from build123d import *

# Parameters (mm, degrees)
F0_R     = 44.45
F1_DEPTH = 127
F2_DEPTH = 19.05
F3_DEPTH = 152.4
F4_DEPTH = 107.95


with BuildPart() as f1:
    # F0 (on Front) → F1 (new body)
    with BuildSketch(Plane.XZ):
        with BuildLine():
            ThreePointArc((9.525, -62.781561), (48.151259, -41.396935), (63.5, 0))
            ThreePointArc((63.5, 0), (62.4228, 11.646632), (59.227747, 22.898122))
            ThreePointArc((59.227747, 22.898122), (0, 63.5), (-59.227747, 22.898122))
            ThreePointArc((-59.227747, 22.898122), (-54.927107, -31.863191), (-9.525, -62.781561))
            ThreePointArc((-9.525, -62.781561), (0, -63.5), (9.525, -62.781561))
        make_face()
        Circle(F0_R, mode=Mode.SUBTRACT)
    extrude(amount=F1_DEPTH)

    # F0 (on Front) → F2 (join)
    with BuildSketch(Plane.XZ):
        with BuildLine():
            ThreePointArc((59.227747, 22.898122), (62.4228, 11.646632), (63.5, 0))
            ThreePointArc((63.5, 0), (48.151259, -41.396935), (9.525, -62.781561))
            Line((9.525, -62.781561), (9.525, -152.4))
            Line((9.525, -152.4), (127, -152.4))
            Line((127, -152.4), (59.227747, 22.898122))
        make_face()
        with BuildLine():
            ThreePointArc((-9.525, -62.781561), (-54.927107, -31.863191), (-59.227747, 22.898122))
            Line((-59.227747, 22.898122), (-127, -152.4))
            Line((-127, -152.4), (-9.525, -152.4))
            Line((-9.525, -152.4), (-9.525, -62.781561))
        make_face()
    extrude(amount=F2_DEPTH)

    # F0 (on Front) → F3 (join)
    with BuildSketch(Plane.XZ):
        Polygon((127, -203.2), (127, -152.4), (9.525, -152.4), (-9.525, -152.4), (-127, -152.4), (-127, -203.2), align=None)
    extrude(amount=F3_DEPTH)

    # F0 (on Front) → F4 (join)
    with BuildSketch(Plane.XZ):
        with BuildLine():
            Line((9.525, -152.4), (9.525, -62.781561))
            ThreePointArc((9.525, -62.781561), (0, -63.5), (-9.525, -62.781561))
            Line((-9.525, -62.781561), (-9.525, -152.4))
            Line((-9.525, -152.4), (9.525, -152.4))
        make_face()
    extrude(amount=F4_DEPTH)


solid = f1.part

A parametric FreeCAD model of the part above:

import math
import FreeCAD as App
import Part
import Sketcher

V = App.Vector
Q = App.Units.Quantity

doc = App.newDocument("Part")
body = doc.addObject("PartDesign::Body", "Body")

sketch1 = body.newObject("Sketcher::SketchObject", "Sketch")
sketch1.AttachmentSupport = (doc.getObject("XZ_Plane"), [""])
sketch1.MapMode = "FlatFace"
sketch1.addGeometry([
    Part.ArcOfCircle(Part.Circle(V(-0.000001, 0.000001, 0), V(0, 0, 1), 63.500001), math.radians(-81.373073), math.radians(-0.000001)),
    Part.ArcOfCircle(Part.Circle(V(-0.000003, 0, 0), V(0, 0, 1), 63.500003), math.radians(0), math.radians(21.137069)),
    Part.ArcOfCircle(Part.Circle(V(0, 0, 0), V(0, 0, 1), 63.5), math.radians(21.13707), math.radians(158.86293)),
    Part.ArcOfCircle(Part.Circle(V(0, 0, 0), V(0, 0, 1), 63.5), math.radians(158.86293), math.radians(261.373074)),
    Part.ArcOfCircle(Part.Circle(V(0, 0.000019, 0), V(0, 0, 1), 63.500019), math.radians(-98.626924), math.radians(-81.373076)),
    Part.Circle(V(0, 0, 0), V(0, 0, 1), 44.45),
], False)
sketch1.addConstraint([
    Sketcher.Constraint("Coincident", 0, 2, 1, 1),
    Sketcher.Constraint("Coincident", 1, 2, 2, 1),
    Sketcher.Constraint("Coincident", 2, 2, 3, 1),
    Sketcher.Constraint("Coincident", 3, 2, 4, 1),
    Sketcher.Constraint("Coincident", 4, 2, 0, 1),
    Sketcher.Constraint("Coincident", 0, 3, -1, 1),
    Sketcher.Constraint("Coincident", 1, 3, -1, 1),
    Sketcher.Constraint("Coincident", 2, 3, -1, 1),
    Sketcher.Constraint("Coincident", 3, 3, -1, 1),
    Sketcher.Constraint("Coincident", 5, 3, -1, 1),
    Sketcher.Constraint("PointOnObject", 0, 2, -1),
    Sketcher.Constraint("Diameter", 5, Q("3.5 in")),
    Sketcher.Constraint("Radius", 0, Q("2.5 in")),
    Sketcher.Constraint("DistanceX", 3, 2, 4, 2, Q("0.75 in")),
    Sketcher.Constraint("DistanceX", 3, 2, -1, 1, Q("0.375 in")),
    Sketcher.Constraint("Radius", 4, 63.500019),
    Sketcher.Constraint("DistanceY", 4, 3, 1, 2, Q("0.9015001 in")),
    Sketcher.Constraint("DistanceY", 4, 3, 2, 2, Q("0.9015001 in")),
])
pad1 = body.newObject("PartDesign::Pad", "Pad")
pad1.Profile = sketch1
pad1.Length = Q("5 in")

sketch2 = body.newObject("Sketcher::SketchObject", "Sketch001")
sketch2.AttachmentSupport = (doc.getObject("XZ_Plane"), [""])
sketch2.MapMode = "FlatFace"
sketch2.addGeometry([
    Part.ArcOfCircle(Part.Circle(V(-0.000003, 0, 0), V(0, 0, 1), 63.500003), math.radians(0), math.radians(21.137069)),
    Part.ArcOfCircle(Part.Circle(V(-0.000001, 0.000001, 0), V(0, 0, 1), 63.500001), math.radians(-81.373073), math.radians(-0.000001)),
    Part.LineSegment(V(9.525, -62.781561, 0), V(9.525, -152.4, 0)),
    Part.LineSegment(V(9.525, -152.4, 0), V(127, -152.4, 0)),
    Part.LineSegment(V(127, -152.4, 0), V(59.227747, 22.898122, 0)),
    Part.ArcOfCircle(Part.Circle(V(0, 0, 0), V(0, 0, 1), 63.5), math.radians(158.86293), math.radians(261.373074)),
    Part.LineSegment(V(-59.227747, 22.898122, 0), V(-127, -152.4, 0)),
    Part.LineSegment(V(-127, -152.4, 0), V(-9.525, -152.4, 0)),
    Part.LineSegment(V(-9.525, -152.4, 0), V(-9.525, -62.781561, 0)),
], False)
sketch2.addConstraint([
    Sketcher.Constraint("Tangent", 0, 1, 1, 2),
    Sketcher.Constraint("Coincident", 1, 1, 2, 1),
    Sketcher.Constraint("Coincident", 2, 2, 3, 1),
    Sketcher.Constraint("Coincident", 3, 2, 4, 1),
    Sketcher.Constraint("Tangent", 4, 2, 0, 2),
    Sketcher.Constraint("Tangent", 5, 1, 6, 1),
    Sketcher.Constraint("Coincident", 6, 2, 7, 1),
    Sketcher.Constraint("Coincident", 7, 2, 8, 1),
    Sketcher.Constraint("Coincident", 8, 2, 5, 2),
    Sketcher.Constraint("Vertical", 2),
    Sketcher.Constraint("Horizontal", 3),
    Sketcher.Constraint("Horizontal", 7),
    Sketcher.Constraint("Vertical", 8),
    Sketcher.Constraint("Coincident", 0, 3, -1, 1),
    Sketcher.Constraint("Coincident", 5, 3, -1, 1),
    Sketcher.Constraint("Equal", 0, 1),
    Sketcher.Constraint("Equal", 1, 5),
    Sketcher.Constraint("Symmetric", 3, 2, 6, 2, -2),
    Sketcher.Constraint("PointOnObject", 0, 1, -1),
    Sketcher.Constraint("Horizontal", 1, 1, 8, 2),
    Sketcher.Constraint("Radius", 0, Q("2.5000001 in")),
    Sketcher.Constraint("DistanceY", 2, 2, -1, 1, Q("6 in")),
    Sketcher.Constraint("DistanceX", -1, 1, 3, 2, Q("5 in")),
    Sketcher.Constraint("DistanceX", 3, 1, 3, 2, Q("4.625 in")),
])
pad2 = body.newObject("PartDesign::Pad", "Pad001")
pad2.Profile = sketch2
pad2.Length = Q("0.75 in")

sketch3 = body.newObject("Sketcher::SketchObject", "Sketch002")
sketch3.AttachmentSupport = (doc.getObject("XZ_Plane"), [""])
sketch3.MapMode = "FlatFace"
sketch3.addGeometry([
    Part.LineSegment(V(127, -203.2, 0), V(127, -152.4, 0)),
    Part.LineSegment(V(127, -152.4, 0), V(-127, -152.4, 0)),
    Part.LineSegment(V(-127, -152.4, 0), V(-127, -203.2, 0)),
    Part.LineSegment(V(-127, -203.2, 0), V(127, -203.2, 0)),
], False)
sketch3.addConstraint([
    Sketcher.Constraint("Coincident", 0, 2, 1, 1),
    Sketcher.Constraint("Coincident", 1, 2, 2, 1),
    Sketcher.Constraint("Coincident", 2, 2, 3, 1),
    Sketcher.Constraint("Coincident", 3, 2, 0, 1),
    Sketcher.Constraint("Vertical", 0),
    Sketcher.Constraint("Horizontal", 1),
    Sketcher.Constraint("Vertical", 2),
    Sketcher.Constraint("Horizontal", 3),
    Sketcher.Constraint("DistanceX", 1, 2, 1, 1, Q("10 in")),
    Sketcher.Constraint("DistanceY", 0, 1, 0, 2, Q("2 in")),
    Sketcher.Constraint("DistanceX", -1, 1, 0, 2, Q("5 in")),
    Sketcher.Constraint("DistanceY", 0, 2, -1, 1, Q("6 in")),
])
pad3 = body.newObject("PartDesign::Pad", "Pad002")
pad3.Profile = sketch3
pad3.Length = Q("6 in")

sketch4 = body.newObject("Sketcher::SketchObject", "Sketch003")
sketch4.AttachmentSupport = (doc.getObject("XZ_Plane"), [""])
sketch4.MapMode = "FlatFace"
sketch4.addGeometry([
    Part.LineSegment(V(9.525, -152.4, 0), V(9.525, -62.781561, 0)),
    Part.ArcOfCircle(Part.Circle(V(0, 0.000019, 0), V(0, 0, 1), 63.500019), math.radians(-98.626924), math.radians(-81.373076)),
    Part.LineSegment(V(-9.525, -62.781561, 0), V(-9.525, -152.4, 0)),
    Part.LineSegment(V(-9.525, -152.4, 0), V(9.525, -152.4, 0)),
], False)
sketch4.addConstraint([
    Sketcher.Constraint("Coincident", 0, 2, 1, 2),
    Sketcher.Constraint("Coincident", 1, 1, 2, 1),
    Sketcher.Constraint("Coincident", 2, 2, 3, 1),
    Sketcher.Constraint("Coincident", 3, 2, 0, 1),
    Sketcher.Constraint("Vertical", 0),
    Sketcher.Constraint("Vertical", 2),
    Sketcher.Constraint("Horizontal", 3),
    Sketcher.Constraint("Symmetric", 0, 2, 1, 1, -2),
    Sketcher.Constraint("DistanceY", 2, 2, -1, 1, Q("6 in")),
    Sketcher.Constraint("DistanceX", 3, 1, 3, 2, Q("0.75 in")),
    Sketcher.Constraint("Radius", 1, 63.500019),
    Sketcher.Constraint("DistanceY", 0, 1, 0, 2, 89.618439),
])
pad4 = body.newObject("PartDesign::Pad", "Pad003")
pad4.Profile = sketch4
pad4.Length = Q("4.25 in")

doc.recompute()
